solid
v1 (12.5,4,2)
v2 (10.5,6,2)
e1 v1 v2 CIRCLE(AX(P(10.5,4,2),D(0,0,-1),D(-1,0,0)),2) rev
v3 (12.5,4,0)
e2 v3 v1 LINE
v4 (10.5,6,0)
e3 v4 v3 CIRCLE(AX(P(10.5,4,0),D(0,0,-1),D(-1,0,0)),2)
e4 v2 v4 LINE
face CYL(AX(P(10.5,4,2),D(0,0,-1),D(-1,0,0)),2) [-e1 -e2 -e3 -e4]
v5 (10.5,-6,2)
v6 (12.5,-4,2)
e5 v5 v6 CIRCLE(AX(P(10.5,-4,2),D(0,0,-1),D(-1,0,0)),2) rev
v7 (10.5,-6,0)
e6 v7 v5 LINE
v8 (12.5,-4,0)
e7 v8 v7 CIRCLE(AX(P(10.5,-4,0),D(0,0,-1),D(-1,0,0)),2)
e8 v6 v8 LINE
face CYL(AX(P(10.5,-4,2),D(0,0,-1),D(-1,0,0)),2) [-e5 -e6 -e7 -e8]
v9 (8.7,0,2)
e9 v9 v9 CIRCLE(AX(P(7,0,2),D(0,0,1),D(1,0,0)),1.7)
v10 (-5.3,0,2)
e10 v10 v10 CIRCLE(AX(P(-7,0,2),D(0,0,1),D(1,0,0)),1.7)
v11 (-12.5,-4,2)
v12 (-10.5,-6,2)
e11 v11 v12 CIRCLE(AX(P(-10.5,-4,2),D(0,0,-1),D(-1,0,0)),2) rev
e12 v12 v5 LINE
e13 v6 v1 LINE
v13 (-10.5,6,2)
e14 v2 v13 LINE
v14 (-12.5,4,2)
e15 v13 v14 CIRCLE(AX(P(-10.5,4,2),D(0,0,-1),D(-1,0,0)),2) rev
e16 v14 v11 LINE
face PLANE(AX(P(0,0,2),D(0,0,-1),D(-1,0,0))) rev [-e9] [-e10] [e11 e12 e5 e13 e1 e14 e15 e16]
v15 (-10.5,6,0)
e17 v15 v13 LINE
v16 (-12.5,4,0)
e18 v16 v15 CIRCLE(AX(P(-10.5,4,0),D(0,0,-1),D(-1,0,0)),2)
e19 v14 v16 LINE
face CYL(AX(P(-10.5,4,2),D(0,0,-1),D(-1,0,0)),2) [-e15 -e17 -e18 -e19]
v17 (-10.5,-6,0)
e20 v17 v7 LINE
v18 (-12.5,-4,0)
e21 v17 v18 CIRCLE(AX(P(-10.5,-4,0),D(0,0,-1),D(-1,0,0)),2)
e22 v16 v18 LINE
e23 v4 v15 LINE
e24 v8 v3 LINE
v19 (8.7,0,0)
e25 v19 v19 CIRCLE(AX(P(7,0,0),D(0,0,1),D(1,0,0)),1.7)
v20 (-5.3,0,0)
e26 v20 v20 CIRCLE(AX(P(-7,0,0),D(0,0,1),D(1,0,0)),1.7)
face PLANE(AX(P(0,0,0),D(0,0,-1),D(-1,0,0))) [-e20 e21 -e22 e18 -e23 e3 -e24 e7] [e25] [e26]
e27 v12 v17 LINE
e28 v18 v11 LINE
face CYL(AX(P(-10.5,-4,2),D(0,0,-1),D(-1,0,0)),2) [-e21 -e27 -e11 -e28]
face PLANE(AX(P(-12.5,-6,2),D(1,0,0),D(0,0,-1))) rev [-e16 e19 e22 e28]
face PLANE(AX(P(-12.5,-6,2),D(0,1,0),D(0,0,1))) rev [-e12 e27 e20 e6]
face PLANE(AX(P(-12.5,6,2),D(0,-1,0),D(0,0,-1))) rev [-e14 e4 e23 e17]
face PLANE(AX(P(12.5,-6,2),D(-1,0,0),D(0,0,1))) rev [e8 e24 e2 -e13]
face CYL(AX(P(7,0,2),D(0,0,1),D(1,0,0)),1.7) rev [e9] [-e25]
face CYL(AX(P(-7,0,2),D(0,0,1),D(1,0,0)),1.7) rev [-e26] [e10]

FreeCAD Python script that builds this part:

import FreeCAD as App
import Part
import Sketcher
from FreeCAD import Vector


def edges_at(feature, points):
    """Names of the edges that pass closest to the given points."""
    edges = feature.Shape.Edges
    near = lambda p: min(range(len(edges)), key=lambda i: edges[i].distToShape(Part.Vertex(*p))[0])
    return sorted({f"Edge{near(p) + 1}" for p in points})


def add_polygon(sketch, points):
    """Adds a closed chain of lines whose ends are joined by coincident constraints."""
    first, n = sketch.GeometryCount, len(points)
    for a, b in zip(points, points[1:] + points[:1]):
        sketch.addGeometry(Part.LineSegment(App.Vector(*a, 0), App.Vector(*b, 0)), False)
    for i in range(n):
        sketch.addConstraint(Sketcher.Constraint("Coincident", first + i, 2, first + (i + 1) % n, 1))

doc = App.newDocument("Part")
body = doc.addObject("PartDesign::Body", "Body")

# Sketch on XY plane
sketch1 = body.newObject("Sketcher::SketchObject", "Sketch")
sketch1.AttachmentSupport = (doc.getObject("XY_Plane"), [""])
sketch1.MapMode = "FlatFace"
add_polygon(sketch1, [(-12, 6), (-12, -6), (12, -6), (12, 6)])  # lines 0-3
sketch1.addConstraint([
    Sketcher.Constraint("Vertical", 0),
    Sketcher.Constraint("Horizontal", 1),
    Sketcher.Constraint("Vertical", 2),
    Sketcher.Constraint("Horizontal", 3),
    Sketcher.Constraint("Symmetric", 0, 2, 2, 2, -1, 1),
    Sketcher.Constraint("DistanceX", 1, 1, 1, 2, 25.0),
    Sketcher.Constraint("DistanceY", 0, 2, 0, 1, 12.0),
])
pad1 = body.newObject("PartDesign::Pad", "Pad")
pad1.Profile = sketch1
pad1.Length = 2

# Sketch on XY plane
sketch2 = body.newObject("Sketcher::SketchObject", "Sketch001")
sketch2.AttachmentSupport = (doc.getObject("XY_Plane"), [""])
sketch2.MapMode = "FlatFace"
sketch2.AttachmentOffset = App.Placement(Vector(0, 0, 2), App.Rotation())
sketch2.addGeometry([
    Part.Circle(Vector(-7, 0, 0), Vector(0, 0, 1), 1.7),
    Part.Circle(Vector(7, 0, 0), Vector(0, 0, 1), 1.7),
], False)
sketch2.addConstraint([
    Sketcher.Constraint("Equal", 0, 1),
    Sketcher.Constraint("Symmetric", 0, 3, 1, 3, -1, 1),
    Sketcher.Constraint("PointOnObject", 0, 3, -1),
    Sketcher.Constraint("Diameter", 0, 3.4),
    Sketcher.Constraint("DistanceX", 0, 3, -1, 1, 7.0),
])
doc.recompute()
hole = body.newObject("PartDesign::Hole", "Hole")
hole.Profile = sketch2
hole.ThreadType = "None"
hole.Diameter = 3.4
hole.DepthType = "ThroughAll"
doc.recompute()

fillet = body.newObject("PartDesign::Fillet", "Fillet")
fillet.Base = (hole, edges_at(hole, [
    (12.5, -6, 1),
    (-12.5, -6, 1),
    (-12.5, 6, 1),
    (12.5, 6, 1),
]))
fillet.Radius = 2

doc.recompute()
